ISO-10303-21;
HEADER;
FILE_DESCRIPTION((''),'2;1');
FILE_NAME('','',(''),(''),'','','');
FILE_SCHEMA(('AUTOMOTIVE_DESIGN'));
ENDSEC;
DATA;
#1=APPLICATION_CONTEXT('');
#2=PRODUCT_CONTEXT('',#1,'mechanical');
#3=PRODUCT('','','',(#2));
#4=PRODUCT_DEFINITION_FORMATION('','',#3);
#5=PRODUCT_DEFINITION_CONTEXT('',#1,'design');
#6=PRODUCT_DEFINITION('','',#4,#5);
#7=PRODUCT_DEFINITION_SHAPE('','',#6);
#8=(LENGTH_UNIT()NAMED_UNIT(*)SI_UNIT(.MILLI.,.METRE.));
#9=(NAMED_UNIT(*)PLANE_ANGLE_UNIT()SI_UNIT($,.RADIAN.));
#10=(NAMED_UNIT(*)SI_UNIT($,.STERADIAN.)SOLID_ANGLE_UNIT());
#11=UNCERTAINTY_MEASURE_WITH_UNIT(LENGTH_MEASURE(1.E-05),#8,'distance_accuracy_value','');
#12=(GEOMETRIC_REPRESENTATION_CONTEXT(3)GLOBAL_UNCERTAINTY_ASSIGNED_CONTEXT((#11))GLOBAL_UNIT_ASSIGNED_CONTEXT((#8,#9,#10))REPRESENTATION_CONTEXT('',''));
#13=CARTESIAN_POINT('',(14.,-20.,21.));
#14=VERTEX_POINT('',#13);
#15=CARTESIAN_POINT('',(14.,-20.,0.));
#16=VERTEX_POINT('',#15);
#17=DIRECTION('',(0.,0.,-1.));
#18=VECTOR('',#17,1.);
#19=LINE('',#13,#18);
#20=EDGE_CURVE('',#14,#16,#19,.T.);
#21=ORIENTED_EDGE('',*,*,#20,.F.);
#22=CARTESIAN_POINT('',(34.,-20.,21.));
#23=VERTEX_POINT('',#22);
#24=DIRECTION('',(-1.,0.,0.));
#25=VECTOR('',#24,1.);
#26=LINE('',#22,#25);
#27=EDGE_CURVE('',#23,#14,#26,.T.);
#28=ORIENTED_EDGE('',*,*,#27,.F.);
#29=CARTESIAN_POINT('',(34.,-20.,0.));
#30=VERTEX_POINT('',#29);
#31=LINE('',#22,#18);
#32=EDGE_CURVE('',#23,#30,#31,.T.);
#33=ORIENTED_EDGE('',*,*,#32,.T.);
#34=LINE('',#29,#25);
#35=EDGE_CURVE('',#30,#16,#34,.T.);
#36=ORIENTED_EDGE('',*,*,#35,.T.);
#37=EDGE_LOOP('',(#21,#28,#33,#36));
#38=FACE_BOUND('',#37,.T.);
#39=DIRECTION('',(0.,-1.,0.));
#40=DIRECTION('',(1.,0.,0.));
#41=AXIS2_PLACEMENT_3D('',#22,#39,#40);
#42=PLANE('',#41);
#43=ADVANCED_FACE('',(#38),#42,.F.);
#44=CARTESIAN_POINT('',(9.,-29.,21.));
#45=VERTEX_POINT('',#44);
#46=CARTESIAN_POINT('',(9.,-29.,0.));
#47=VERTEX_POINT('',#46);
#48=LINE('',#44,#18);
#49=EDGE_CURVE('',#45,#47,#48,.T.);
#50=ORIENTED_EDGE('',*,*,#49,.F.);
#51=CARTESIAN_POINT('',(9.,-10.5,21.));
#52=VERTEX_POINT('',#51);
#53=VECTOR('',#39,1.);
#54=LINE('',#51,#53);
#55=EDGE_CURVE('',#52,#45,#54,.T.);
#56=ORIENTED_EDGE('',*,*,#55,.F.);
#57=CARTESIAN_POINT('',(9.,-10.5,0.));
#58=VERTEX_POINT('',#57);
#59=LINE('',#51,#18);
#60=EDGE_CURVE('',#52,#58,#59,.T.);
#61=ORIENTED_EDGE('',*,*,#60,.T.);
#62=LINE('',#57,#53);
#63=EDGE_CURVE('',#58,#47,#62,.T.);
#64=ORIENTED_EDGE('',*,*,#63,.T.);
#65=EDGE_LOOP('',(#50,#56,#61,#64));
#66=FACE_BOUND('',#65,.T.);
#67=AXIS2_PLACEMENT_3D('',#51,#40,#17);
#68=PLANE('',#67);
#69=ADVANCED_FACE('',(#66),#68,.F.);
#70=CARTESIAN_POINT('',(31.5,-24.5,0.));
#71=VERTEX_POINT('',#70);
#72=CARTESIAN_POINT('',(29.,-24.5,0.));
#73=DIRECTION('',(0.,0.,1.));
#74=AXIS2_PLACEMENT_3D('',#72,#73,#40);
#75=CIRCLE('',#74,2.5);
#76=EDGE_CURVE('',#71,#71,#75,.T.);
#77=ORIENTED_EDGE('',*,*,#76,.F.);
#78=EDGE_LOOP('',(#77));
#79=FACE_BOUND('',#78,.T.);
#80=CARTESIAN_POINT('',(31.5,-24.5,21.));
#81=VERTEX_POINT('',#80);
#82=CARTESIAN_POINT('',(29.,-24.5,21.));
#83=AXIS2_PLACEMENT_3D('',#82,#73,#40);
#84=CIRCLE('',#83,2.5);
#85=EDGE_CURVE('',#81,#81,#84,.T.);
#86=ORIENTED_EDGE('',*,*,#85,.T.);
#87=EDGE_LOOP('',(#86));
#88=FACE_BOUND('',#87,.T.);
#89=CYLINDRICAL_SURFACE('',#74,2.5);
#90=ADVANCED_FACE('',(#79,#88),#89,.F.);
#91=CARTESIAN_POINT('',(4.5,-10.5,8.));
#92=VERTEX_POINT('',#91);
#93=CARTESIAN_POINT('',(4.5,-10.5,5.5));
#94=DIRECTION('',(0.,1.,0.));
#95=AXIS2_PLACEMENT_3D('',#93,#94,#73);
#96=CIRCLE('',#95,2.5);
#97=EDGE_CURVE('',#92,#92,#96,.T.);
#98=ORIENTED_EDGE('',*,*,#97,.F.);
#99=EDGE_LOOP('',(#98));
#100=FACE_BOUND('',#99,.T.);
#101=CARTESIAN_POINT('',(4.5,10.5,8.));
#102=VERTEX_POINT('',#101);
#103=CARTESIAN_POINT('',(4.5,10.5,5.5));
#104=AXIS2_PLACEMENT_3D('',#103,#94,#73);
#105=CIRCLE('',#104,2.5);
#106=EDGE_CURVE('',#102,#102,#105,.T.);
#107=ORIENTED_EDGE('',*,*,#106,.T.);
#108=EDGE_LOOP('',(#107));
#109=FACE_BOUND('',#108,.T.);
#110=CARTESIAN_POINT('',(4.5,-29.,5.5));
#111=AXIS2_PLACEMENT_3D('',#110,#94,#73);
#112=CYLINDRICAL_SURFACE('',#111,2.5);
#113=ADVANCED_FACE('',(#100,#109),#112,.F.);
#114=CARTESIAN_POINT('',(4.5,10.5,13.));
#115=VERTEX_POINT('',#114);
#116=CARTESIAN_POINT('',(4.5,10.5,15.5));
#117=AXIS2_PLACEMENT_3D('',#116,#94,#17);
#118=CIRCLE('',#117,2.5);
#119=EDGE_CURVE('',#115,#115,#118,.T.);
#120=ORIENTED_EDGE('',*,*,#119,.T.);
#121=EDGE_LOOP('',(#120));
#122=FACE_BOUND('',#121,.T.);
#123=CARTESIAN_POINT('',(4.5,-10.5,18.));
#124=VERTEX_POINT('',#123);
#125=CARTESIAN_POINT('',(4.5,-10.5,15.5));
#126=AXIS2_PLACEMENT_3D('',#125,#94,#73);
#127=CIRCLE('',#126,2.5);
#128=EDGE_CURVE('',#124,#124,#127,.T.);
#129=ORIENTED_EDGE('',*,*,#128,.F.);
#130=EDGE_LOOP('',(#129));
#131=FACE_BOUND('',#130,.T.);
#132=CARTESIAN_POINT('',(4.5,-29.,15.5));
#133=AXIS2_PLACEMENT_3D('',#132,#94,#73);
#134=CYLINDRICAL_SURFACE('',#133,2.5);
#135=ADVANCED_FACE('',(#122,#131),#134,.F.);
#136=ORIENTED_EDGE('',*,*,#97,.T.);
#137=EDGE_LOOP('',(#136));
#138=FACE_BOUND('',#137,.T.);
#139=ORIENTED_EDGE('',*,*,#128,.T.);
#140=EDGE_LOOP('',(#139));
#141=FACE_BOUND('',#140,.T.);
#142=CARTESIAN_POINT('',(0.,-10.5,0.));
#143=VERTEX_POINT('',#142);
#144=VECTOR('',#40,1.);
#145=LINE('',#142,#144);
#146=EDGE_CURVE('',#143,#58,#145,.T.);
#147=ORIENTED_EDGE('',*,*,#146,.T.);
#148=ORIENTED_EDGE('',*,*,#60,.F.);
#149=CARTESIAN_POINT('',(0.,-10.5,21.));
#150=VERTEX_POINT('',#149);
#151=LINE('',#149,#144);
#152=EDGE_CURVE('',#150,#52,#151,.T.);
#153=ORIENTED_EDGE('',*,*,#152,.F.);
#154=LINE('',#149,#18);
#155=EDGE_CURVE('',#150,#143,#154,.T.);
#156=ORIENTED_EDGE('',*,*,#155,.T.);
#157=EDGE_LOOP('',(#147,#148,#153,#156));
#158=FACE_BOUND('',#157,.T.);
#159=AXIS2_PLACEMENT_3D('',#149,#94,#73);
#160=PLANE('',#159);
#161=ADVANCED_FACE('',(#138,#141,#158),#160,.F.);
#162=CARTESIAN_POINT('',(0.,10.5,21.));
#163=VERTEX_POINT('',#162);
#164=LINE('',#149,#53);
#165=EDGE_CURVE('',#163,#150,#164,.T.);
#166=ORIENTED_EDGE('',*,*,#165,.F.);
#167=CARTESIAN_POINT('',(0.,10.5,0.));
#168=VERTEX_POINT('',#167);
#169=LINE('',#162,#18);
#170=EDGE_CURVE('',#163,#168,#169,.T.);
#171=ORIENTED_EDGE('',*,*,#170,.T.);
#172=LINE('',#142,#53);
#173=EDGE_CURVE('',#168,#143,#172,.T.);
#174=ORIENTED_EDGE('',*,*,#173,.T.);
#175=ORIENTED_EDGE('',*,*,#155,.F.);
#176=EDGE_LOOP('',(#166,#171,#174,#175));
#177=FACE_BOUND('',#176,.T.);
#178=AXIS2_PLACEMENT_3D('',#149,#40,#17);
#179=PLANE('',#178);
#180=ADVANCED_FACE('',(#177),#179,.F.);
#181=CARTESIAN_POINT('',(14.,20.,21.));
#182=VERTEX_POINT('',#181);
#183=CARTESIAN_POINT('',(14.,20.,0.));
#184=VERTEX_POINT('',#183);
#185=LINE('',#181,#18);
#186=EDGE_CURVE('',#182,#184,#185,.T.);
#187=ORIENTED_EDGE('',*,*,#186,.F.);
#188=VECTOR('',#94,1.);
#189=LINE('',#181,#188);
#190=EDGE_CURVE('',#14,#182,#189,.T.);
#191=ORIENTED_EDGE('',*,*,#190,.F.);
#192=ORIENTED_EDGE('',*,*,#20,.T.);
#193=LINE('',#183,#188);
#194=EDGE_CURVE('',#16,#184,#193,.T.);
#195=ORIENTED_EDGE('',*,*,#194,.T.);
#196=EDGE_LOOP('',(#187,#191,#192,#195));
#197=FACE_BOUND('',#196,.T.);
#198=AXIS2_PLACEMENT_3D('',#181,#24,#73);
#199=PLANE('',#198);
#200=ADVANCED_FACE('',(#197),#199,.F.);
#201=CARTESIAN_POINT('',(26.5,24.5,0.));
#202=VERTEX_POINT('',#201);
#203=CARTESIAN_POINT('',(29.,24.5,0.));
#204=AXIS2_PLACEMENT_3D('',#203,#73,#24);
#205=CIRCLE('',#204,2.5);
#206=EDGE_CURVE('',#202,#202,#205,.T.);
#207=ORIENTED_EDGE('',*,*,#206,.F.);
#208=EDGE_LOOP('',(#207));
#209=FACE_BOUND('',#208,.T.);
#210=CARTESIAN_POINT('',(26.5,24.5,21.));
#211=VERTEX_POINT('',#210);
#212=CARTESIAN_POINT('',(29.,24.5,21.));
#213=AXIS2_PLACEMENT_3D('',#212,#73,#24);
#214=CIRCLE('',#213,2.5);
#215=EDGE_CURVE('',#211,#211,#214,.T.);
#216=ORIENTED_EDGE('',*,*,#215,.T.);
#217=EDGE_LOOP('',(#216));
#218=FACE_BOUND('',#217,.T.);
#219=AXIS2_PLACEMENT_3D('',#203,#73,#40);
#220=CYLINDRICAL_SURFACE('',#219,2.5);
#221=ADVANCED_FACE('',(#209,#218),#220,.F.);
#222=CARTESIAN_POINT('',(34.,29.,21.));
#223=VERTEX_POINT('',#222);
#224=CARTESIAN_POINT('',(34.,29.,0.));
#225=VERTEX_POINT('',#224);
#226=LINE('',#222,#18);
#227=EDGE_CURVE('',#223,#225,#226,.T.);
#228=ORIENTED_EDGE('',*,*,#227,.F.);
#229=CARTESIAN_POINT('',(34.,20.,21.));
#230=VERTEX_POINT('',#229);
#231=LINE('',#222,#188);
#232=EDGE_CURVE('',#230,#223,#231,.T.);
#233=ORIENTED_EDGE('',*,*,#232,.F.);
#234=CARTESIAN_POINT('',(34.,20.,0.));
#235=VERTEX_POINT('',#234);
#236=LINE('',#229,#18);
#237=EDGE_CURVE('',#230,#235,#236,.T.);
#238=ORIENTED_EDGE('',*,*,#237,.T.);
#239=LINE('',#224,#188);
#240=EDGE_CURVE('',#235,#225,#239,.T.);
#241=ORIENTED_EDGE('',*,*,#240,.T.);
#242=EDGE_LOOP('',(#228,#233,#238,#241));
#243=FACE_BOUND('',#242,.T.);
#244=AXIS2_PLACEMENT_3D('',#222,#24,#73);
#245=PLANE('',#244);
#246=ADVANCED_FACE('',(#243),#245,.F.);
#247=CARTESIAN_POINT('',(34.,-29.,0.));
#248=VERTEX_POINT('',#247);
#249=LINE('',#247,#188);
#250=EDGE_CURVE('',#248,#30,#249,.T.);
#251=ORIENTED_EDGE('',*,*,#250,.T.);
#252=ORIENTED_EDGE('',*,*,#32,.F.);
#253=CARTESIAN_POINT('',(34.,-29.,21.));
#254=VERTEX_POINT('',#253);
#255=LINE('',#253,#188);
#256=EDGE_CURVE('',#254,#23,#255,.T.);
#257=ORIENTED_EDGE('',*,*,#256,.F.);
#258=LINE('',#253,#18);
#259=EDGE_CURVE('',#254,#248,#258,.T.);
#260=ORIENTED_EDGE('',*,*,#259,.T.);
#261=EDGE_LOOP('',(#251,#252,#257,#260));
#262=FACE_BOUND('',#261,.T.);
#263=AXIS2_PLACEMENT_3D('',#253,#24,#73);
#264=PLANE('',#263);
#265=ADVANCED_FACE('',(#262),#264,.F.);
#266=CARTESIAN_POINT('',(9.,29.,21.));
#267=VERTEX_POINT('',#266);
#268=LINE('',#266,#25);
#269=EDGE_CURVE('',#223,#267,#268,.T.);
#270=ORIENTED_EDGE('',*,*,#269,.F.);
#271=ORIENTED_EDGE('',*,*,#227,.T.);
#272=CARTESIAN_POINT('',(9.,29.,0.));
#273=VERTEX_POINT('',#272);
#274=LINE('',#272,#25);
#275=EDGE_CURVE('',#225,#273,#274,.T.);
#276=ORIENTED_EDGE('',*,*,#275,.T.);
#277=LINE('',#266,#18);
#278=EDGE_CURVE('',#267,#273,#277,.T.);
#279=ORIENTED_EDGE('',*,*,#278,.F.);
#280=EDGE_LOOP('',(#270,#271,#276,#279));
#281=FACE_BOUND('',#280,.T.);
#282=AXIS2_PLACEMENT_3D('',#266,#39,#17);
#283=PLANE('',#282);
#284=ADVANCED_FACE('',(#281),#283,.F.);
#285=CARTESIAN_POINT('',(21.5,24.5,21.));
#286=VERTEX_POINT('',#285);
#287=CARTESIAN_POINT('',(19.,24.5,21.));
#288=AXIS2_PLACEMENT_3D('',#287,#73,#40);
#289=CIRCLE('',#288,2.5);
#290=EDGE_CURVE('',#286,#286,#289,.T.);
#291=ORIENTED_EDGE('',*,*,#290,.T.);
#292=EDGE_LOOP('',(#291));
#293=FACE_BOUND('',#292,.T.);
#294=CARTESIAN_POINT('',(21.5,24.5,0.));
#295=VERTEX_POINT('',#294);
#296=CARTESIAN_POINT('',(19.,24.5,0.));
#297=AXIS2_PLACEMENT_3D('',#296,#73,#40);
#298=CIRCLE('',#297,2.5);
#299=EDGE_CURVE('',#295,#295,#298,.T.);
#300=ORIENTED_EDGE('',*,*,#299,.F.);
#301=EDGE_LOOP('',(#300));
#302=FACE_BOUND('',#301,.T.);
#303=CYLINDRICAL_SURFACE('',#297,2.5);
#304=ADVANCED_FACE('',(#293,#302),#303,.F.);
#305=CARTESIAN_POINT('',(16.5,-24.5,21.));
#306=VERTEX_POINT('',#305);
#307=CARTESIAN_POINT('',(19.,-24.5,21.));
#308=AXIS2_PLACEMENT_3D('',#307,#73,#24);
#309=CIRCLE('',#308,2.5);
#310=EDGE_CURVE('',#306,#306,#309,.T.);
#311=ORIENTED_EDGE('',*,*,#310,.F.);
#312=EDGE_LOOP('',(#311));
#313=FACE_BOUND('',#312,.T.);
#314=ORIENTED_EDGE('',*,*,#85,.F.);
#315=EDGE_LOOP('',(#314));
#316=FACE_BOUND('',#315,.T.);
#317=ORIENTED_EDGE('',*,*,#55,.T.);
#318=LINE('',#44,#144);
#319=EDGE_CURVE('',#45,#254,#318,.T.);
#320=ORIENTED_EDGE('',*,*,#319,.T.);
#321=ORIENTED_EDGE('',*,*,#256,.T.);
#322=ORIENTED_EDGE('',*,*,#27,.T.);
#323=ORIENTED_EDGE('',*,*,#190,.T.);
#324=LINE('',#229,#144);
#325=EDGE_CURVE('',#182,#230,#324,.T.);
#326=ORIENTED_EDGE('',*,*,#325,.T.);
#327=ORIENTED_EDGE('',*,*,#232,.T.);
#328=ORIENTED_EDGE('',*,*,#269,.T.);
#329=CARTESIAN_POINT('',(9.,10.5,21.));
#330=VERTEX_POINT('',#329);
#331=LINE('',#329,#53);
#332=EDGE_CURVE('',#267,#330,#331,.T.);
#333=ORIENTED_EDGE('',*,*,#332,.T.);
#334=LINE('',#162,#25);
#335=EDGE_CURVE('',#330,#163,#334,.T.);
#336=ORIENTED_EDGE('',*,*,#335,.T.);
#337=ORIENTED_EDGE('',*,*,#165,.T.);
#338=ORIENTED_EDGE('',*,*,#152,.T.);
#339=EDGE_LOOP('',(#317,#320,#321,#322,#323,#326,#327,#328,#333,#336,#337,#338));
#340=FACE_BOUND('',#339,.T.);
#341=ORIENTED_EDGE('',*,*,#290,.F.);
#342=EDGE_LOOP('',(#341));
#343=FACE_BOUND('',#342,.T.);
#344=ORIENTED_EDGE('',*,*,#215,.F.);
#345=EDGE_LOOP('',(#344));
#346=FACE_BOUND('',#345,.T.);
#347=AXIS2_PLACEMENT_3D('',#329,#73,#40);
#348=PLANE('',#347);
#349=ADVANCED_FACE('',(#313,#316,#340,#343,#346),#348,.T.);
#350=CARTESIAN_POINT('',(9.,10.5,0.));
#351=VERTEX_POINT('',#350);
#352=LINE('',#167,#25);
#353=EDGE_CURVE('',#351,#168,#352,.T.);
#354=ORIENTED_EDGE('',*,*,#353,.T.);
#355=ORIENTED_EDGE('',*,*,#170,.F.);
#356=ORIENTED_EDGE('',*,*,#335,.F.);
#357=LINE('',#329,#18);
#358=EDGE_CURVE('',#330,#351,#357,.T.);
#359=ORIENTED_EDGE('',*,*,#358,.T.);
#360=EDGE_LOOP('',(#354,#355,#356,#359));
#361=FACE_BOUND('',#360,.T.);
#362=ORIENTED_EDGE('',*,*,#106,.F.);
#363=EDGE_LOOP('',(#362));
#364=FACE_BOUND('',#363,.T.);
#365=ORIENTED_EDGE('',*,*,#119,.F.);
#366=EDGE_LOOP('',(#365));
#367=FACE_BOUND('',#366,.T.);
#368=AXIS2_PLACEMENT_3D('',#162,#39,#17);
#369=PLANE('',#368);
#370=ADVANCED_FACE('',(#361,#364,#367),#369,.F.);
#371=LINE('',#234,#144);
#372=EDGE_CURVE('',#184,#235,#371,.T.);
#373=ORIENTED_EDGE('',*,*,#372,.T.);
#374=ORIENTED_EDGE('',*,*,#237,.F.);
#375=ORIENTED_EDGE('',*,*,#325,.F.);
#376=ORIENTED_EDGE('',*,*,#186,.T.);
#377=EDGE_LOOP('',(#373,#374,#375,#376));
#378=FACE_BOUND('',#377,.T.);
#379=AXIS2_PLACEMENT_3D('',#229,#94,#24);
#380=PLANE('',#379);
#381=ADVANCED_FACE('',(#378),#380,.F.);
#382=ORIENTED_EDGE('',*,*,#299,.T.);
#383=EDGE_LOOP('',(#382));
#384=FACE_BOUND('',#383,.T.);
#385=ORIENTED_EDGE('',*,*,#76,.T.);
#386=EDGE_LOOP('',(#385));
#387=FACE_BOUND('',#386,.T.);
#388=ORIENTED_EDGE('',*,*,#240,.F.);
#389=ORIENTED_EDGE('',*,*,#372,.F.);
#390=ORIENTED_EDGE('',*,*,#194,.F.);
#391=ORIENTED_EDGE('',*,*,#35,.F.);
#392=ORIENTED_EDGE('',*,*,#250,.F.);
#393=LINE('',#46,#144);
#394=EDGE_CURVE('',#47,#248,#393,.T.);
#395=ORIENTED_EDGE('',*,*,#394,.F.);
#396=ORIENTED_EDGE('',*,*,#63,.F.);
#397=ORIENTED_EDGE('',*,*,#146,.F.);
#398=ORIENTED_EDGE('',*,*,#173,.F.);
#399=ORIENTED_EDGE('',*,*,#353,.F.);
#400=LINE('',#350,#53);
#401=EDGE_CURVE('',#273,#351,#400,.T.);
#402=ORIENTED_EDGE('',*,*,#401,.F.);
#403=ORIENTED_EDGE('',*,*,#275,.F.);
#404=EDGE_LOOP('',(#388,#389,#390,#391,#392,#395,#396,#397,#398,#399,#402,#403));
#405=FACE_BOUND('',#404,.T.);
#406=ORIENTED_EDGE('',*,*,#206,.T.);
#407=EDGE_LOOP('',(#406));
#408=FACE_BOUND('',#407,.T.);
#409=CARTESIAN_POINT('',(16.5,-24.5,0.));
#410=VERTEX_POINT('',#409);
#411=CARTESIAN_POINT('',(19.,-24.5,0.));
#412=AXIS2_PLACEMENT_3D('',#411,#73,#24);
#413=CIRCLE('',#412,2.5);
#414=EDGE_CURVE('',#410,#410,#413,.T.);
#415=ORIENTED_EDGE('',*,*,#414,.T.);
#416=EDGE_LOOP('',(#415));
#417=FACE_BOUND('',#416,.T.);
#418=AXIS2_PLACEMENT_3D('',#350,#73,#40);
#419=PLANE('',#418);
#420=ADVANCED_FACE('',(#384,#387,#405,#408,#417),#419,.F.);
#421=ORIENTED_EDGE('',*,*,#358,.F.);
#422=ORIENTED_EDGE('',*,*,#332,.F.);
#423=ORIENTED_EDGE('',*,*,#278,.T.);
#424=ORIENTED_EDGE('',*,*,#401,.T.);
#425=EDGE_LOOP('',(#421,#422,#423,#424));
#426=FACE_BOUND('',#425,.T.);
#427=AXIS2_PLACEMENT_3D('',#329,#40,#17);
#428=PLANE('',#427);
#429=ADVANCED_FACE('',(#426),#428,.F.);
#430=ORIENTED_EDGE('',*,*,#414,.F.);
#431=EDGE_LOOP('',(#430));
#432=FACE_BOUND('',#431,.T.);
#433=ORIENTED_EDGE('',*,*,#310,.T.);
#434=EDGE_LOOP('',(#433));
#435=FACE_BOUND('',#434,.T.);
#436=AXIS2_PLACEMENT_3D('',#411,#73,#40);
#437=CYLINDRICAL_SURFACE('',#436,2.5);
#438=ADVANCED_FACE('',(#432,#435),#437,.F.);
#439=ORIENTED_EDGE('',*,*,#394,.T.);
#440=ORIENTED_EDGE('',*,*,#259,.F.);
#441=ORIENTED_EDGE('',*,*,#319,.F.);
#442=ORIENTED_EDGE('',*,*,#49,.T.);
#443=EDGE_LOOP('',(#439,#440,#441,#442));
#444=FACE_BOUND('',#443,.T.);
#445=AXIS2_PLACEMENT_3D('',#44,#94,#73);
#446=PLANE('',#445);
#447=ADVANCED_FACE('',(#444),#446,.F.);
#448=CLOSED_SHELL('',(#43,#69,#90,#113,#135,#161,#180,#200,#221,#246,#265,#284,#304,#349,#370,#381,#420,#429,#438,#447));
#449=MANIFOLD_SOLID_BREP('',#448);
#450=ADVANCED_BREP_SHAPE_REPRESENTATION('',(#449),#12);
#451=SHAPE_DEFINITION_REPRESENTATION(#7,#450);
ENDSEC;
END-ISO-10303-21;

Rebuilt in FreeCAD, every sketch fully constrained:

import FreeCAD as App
import Part
import Sketcher

V = App.Vector


def add_polygon(sketch, points):
    """Adds a closed chain of lines whose ends are joined by coincident constraints."""
    first, n = sketch.GeometryCount, len(points)
    for a, b in zip(points, points[1:] + points[:1]):
        sketch.addGeometry(Part.LineSegment(App.Vector(*a, 0), App.Vector(*b, 0)), False)
    for i in range(n):
        sketch.addConstraint(Sketcher.Constraint("Coincident", first + i, 2, first + (i + 1) % n, 1))

doc = App.newDocument("Part")
body = doc.addObject("PartDesign::Body", "Body")

sketch1 = doc.addObject("Sketcher::SketchObject", "Sketch")
body.addObject(sketch1)
sketch1.AttachmentSupport = (doc.XY_Plane, [""])
sketch1.MapMode = "FlatFace"
add_polygon(sketch1, [(0, 10), (0, -10), (9, -10), (9, -29), (34, -29), (34, -20), (14, -20), (14, 20), (34, 20), (34, 29), (9, 29), (9, 10)])
sketch1.addConstraint([
    Sketcher.Constraint("Vertical", 0),
    Sketcher.Constraint("Horizontal", 1),
    Sketcher.Constraint("Vertical", 2),
    Sketcher.Constraint("Horizontal", 3),
    Sketcher.Constraint("Vertical", 4),
    Sketcher.Constraint("Horizontal", 5),
    Sketcher.Constraint("Vertical", 6),
    Sketcher.Constraint("Horizontal", 7),
    Sketcher.Constraint("Vertical", 8),
    Sketcher.Constraint("Horizontal", 9),
    Sketcher.Constraint("Vertical", 10),
    Sketcher.Constraint("Horizontal", 11),
    Sketcher.Constraint("Symmetric", 0, 2, 11, 2, -1, 1),
    Sketcher.Constraint("Symmetric", 4, 2, 7, 2, -1),
    Sketcher.Constraint("Symmetric", 2, 2, 9, 2, -1),
    Sketcher.Constraint("Equal", 11, 4),
    Sketcher.Constraint("DistanceX", 1, 1, 1, 2, 9.0),
    Sketcher.Constraint("DistanceX", 3, 1, 3, 2, 25.0),
    Sketcher.Constraint("DistanceX", 5, 2, 5, 1, 20.0),
    Sketcher.Constraint("DistanceY", 0, 2, 0, 1, 21.0),
    Sketcher.Constraint("DistanceY", 6, 1, 6, 2, 40.0),
])
pad1 = doc.addObject("PartDesign::Pad", "Pad")
body.addObject(pad1)
pad1.Profile = sketch1
pad1.Length = 21

sketch2 = doc.addObject("Sketcher::SketchObject", "Sketch001")
body.addObject(sketch2)
sketch2.AttachmentSupport = (doc.XY_Plane, [""])
sketch2.MapMode = "FlatFace"
sketch2.AttachmentOffset = App.Placement(V(0, 0, 21), App.Rotation())
sketch2.addGeometry([
    Part.Circle(V(29, 24.5, 0), V(0, 0, 1), 2.5),
    Part.Circle(V(19, 24.5, 0), V(0, 0, 1), 2.5),
    Part.Circle(V(19, -24.5, 0), V(0, 0, 1), 2.5),
    Part.Circle(V(29, -24.5, 0), V(0, 0, 1), 2.5),
], False)
sketch2.addConstraint([
    Sketcher.Constraint("Equal", 0, 1),
    Sketcher.Constraint("Equal", 1, 2),
    Sketcher.Constraint("Equal", 2, 3),
    Sketcher.Constraint("Symmetric", 1, 3, 2, 3, -1),
    Sketcher.Constraint("Symmetric", 0, 3, 3, 3, -1),
    Sketcher.Constraint("Horizontal", 0, 3, 1, 3),
    Sketcher.Constraint("Diameter", 0, 5.0),
    Sketcher.Constraint("DistanceX", -1, 1, 0, 3, 29.0),
    Sketcher.Constraint("DistanceX", -1, 1, 1, 3, 19.0),
    Sketcher.Constraint("DistanceY", 2, 3, 1, 3, 49.0),
])
pocket1 = doc.addObject("PartDesign::Pocket", "Pocket")
body.addObject(pocket1)
pocket1.Profile = sketch2
pocket1.Type = "ThroughAll"

sketch3 = doc.addObject("Sketcher::SketchObject", "Sketch002")
body.addObject(sketch3)
sketch3.AttachmentSupport = (doc.XZ_Plane, [""])
sketch3.MapMode = "FlatFace"
sketch3.AttachmentOffset = App.Placement(V(0, 0, -10.5), App.Rotation())
sketch3.addGeometry([
    Part.Circle(V(4.5, 5.5, 0), V(0, 0, 1), 2.5),
    Part.Circle(V(4.5, 15.5, 0), V(0, 0, 1), 2.5),
], False)
sketch3.addConstraint([
    Sketcher.Constraint("Equal", 0, 1),
    Sketcher.Constraint("Vertical", 0, 3, 1, 3),
    Sketcher.Constraint("Diameter", 0, 5.0),
    Sketcher.Constraint("DistanceY", 0, 3, 1, 3, 10.0),
    Sketcher.Constraint("DistanceX", -1, 1, 0, 3, 4.5),
    Sketcher.Constraint("DistanceY", -1, 1, 0, 3, 5.5),
])
pocket2 = doc.addObject("PartDesign::Pocket", "Pocket001")
body.addObject(pocket2)
pocket2.Profile = sketch3
pocket2.Type = "ThroughAll"
pocket2.Reversed = True

doc.recompute()
